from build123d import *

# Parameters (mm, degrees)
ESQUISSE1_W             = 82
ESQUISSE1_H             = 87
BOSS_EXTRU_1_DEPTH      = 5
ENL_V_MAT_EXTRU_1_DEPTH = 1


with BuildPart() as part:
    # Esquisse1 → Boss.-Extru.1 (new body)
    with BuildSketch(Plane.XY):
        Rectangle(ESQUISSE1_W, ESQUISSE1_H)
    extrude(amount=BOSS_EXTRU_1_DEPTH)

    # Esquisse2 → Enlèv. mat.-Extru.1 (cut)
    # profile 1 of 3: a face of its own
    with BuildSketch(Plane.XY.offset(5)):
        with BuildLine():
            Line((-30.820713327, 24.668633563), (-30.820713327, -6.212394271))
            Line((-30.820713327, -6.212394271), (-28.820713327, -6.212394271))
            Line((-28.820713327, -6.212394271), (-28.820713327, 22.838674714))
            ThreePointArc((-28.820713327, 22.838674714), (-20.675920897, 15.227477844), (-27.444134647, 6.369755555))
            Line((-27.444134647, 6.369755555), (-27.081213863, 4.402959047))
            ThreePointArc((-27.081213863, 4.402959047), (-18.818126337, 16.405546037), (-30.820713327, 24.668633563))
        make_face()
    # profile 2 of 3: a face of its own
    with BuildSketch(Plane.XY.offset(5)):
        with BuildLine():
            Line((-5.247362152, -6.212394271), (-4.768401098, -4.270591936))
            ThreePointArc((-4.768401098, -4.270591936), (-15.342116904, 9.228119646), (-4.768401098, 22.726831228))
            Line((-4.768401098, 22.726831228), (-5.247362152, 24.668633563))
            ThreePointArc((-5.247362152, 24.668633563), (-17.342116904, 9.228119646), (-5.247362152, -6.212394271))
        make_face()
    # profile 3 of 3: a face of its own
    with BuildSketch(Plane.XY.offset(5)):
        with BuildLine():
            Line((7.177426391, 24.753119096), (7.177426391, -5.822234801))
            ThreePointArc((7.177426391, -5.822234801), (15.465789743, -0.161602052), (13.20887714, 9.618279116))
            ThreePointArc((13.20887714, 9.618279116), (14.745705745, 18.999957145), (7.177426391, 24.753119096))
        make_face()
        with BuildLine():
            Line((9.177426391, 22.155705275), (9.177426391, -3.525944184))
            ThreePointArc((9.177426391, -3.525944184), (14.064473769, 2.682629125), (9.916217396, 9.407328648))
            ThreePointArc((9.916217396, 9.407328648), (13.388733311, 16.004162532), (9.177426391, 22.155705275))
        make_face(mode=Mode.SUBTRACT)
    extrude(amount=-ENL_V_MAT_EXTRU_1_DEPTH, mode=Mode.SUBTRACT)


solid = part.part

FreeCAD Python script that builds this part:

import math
import FreeCAD as App
import Part
import Sketcher
from FreeCAD import Vector


def add_polygon(sketch, points):
    """Adds a closed chain of lines whose ends are joined by coincident constraints."""
    first, n = sketch.GeometryCount, len(points)
    for a, b in zip(points, points[1:] + points[:1]):
        sketch.addGeometry(Part.LineSegment(App.Vector(*a, 0), App.Vector(*b, 0)), False)
    for i in range(n):
        sketch.addConstraint(Sketcher.Constraint("Coincident", first + i, 2, first + (i + 1) % n, 1))

doc = App.newDocument("Part")
body = doc.addObject("PartDesign::Body", "Body")

sketch1 = body.newObject("Sketcher::SketchObject", "Sketch")
sketch1.AttachmentSupport = (doc.getObject("XY_Plane"), [""])
sketch1.MapMode = "FlatFace"
add_polygon(sketch1, [(-41, 44), (-41, -44), (41, -44), (41, 44)])
sketch1.addConstraint([
    Sketcher.Constraint("Vertical", 0),
    Sketcher.Constraint("Horizontal", 1),
    Sketcher.Constraint("Vertical", 2),
    Sketcher.Constraint("Horizontal", 3),
    Sketcher.Constraint("Symmetric", 0, 2, 2, 2, -1, 1),
    Sketcher.Constraint("DistanceX", 1, 1, 1, 2, 82.0),
    Sketcher.Constraint("DistanceY", 0, 2, 0, 1, 87.0),
])
pad1 = body.newObject("PartDesign::Pad", "Pad")
pad1.Profile = sketch1
pad1.Length = 5

sketch2 = body.newObject("Sketcher::SketchObject", "Sketch001")
sketch2.AttachmentSupport = (doc.getObject("XY_Plane"), [""])
sketch2.MapMode = "FlatFace"
sketch2.AttachmentOffset = App.Placement(Vector(0, 0, 5), App.Rotation())
sketch2.addGeometry([
    Part.LineSegment(Vector(-30.8, 24.7, 0), Vector(-30.8, -6.2, 0)),
    Part.LineSegment(Vector(-30.8, -6.2, 0), Vector(-28.8, -6.2, 0)),
    Part.LineSegment(Vector(-28.8, -6.2, 0), Vector(-28.8, 22.8, 0)),
    Part.ArcOfCircle(Part.Circle(Vector(-29, 14.5, 0), Vector(0, 0, 1), 8.3), math.radians(-80), math.radians(89)),
    Part.LineSegment(Vector(-27.4, 6.4, 0), Vector(-27.1, 4.4, 0)),
    Part.ArcOfCircle(Part.Circle(Vector(-29, 14.5, 0), Vector(0, 0, 1), 10.3), math.radians(-80), math.radians(100)),
    Part.LineSegment(Vector(-5.2, -6.2, 0), Vector(-4.8, -4.3, 0)),
    Part.ArcOfCircle(Part.Circle(Vector(-1.4, 9.2, 0), Vector(0, 0, 1), 13.9), math.radians(104), math.radians(256)),
    Part.LineSegment(Vector(-4.8, 22.7, 0), Vector(-5.2, 24.7, 0)),
    Part.ArcOfCircle(Part.Circle(Vector(-1.4, 9.2, 0), Vector(0, 0, 1), 15.9), math.radians(104), math.radians(256)),
    Part.LineSegment(Vector(7.2, 24.8, 0), Vector(7.2, -5.8, 0)),
    Part.ArcOfCircle(Part.Circle(Vector(7.2, 3.1, 0), Vector(0, 0, 1), 8.9), math.radians(-90), math.radians(47)),
    Part.ArcOfCircle(Part.Circle(Vector(6.2, 15.6, 0), Vector(0, 0, 1), 9.2), math.radians(-40), math.radians(84)),
    Part.LineSegment(Vector(9.2, -3.5, 0), Vector(9.2, 22.2, 0)),
    Part.ArcOfCircle(Part.Circle(Vector(6.2, 15.6, 0), Vector(0, 0, 1), 7.2), math.radians(-59), math.radians(65)),
    Part.ArcOfCircle(Part.Circle(Vector(7.2, 3.1, 0), Vector(0, 0, 1), 6.9), math.radians(-73), math.radians(67)),
], False)
sketch2.addConstraint([
    Sketcher.Constraint("Coincident", 0, 2, 1, 1),
    Sketcher.Constraint("Coincident", 1, 2, 2, 1),
    Sketcher.Constraint("Coincident", 2, 2, 3, 2),
    Sketcher.Constraint("Coincident", 3, 1, 4, 1),
    Sketcher.Constraint("Coincident", 4, 2, 5, 1),
    Sketcher.Constraint("Coincident", 5, 2, 0, 1),
    Sketcher.Constraint("Coincident", 6, 2, 7, 2),
    Sketcher.Constraint("Coincident", 7, 1, 8, 1),
    Sketcher.Constraint("Coincident", 8, 2, 9, 1),
    Sketcher.Constraint("Coincident", 9, 2, 6, 1),
    Sketcher.Constraint("Coincident", 10, 2, 11, 1),
    Sketcher.Constraint("Coincident", 11, 2, 12, 1),
    Sketcher.Constraint("Coincident", 12, 2, 10, 1),
    Sketcher.Constraint("Coincident", 13, 2, 14, 2),
    Sketcher.Constraint("Coincident", 14, 1, 15, 2),
    Sketcher.Constraint("Coincident", 15, 1, 13, 1),
    Sketcher.Constraint("Vertical", 0),
    Sketcher.Constraint("Horizontal", 1),
    Sketcher.Constraint("Vertical", 2),
    Sketcher.Constraint("Vertical", 10),
    Sketcher.Constraint("Vertical", 13),
    Sketcher.Constraint("Coincident", 5, 3, 3, 3),
    Sketcher.Constraint("Coincident", 9, 3, 7, 3),
    Sketcher.Constraint("Coincident", 14, 3, 12, 3),
    Sketcher.Constraint("Coincident", 15, 3, 11, 3),
    Sketcher.Constraint("Horizontal", 5, 2, 8, 2),
    Sketcher.Constraint("Horizontal", 1, 2, 9, 2),
    Sketcher.Constraint("Vertical", 6, 2, 7, 1),
    Sketcher.Constraint("Vertical", 8, 2, 9, 2),
    Sketcher.Constraint("Vertical", 15, 3, 10, 2),
    Sketcher.Constraint("Equal", 4, 6),
    Sketcher.Constraint("DistanceX", 1, 1, 1, 2, 2.0),
    Sketcher.Constraint("Distance", 4, 2.0),
    Sketcher.Constraint("DistanceX", 12, 2, 13, 2, 2.0),
    Sketcher.Constraint("Radius", 3, 8.3039),
    Sketcher.Constraint("Radius", 7, 13.903281),
    Sketcher.Constraint("Radius", 12, 9.220819),
    Sketcher.Constraint("Radius", 14, 7.220819),
    Sketcher.Constraint("Radius", 11, 8.898275),
    Sketcher.Constraint("Radius", 15, 6.898275),
    Sketcher.Constraint("DistanceY", 2, 1, 2, 2, 29.051069),
    Sketcher.Constraint("DistanceY", 13, 1, 13, 2, 25.681649),
    Sketcher.Constraint("DistanceX", 6, 2, -1, 1, 4.768401),
    Sketcher.Constraint("DistanceX", 1, 2, 4, 2, 1.739499),
    Sketcher.Constraint("DistanceY", 12, 3, 13, 2, 6.569301),
    Sketcher.Constraint("DistanceY", 0, 2, 0, 1, 30.881028),
    Sketcher.Constraint("DistanceY", -1, 1, 7, 3, 9.22812),
    Sketcher.Constraint("DistanceY", -1, 1, 11, 3, 3.07604),
    Sketcher.Constraint("DistanceX", -1, 1, 12, 3, 6.180009),
    Sketcher.Constraint("DistanceY", 6, 2, -1, 1, 4.270592),
    Sketcher.Constraint("DistanceX", 3, 3, 11, 3, 36.12839),
    Sketcher.Constraint("DistanceX", 3, 3, 3, 1, 1.506829),
])
pocket1 = body.newObject("PartDesign::Pocket", "Pocket")
pocket1.Profile = sketch2
pocket1.Length = 1

doc.recompute()
